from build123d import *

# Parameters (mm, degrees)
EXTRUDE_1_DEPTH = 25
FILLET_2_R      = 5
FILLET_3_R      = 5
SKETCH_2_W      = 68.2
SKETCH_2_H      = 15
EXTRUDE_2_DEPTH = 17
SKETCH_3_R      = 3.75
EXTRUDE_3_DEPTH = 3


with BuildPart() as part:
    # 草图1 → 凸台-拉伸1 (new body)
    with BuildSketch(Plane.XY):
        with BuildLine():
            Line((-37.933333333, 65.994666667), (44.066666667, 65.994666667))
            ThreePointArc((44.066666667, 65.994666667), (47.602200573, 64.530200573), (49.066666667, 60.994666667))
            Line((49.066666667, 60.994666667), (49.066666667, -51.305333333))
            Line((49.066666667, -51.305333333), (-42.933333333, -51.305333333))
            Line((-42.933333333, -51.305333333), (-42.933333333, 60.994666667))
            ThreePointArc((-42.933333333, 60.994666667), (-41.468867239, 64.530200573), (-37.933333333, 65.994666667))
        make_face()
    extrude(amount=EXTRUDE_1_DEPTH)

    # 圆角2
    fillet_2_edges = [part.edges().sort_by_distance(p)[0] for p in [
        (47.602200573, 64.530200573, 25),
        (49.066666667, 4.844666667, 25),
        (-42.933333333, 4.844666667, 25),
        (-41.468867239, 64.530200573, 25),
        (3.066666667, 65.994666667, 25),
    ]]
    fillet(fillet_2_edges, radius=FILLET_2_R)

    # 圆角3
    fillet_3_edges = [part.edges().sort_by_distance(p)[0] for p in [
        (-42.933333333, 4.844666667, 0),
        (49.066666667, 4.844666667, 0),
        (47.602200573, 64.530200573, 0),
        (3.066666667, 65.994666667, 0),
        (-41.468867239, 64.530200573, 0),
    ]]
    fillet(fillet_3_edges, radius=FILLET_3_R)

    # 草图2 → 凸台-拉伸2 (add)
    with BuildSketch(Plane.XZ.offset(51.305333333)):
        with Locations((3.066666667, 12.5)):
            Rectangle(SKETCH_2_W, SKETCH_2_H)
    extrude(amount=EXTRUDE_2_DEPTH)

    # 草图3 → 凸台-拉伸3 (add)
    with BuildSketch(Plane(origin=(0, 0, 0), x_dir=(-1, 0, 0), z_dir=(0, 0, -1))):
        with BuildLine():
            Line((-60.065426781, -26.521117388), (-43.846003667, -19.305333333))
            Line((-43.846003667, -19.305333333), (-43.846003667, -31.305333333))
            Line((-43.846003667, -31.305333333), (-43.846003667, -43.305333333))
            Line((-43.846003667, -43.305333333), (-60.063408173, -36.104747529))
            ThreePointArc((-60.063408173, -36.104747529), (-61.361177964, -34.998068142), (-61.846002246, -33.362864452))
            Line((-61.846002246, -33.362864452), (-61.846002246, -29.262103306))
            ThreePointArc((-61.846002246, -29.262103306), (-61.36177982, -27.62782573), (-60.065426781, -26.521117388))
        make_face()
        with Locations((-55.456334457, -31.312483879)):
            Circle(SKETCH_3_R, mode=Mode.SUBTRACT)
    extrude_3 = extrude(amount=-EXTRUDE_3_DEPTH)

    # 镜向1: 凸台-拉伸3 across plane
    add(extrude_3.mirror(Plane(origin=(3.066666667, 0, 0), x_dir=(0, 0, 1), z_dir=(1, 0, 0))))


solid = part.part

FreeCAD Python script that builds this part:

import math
import FreeCAD as App
import Part
import Sketcher


def edges_at(feature, points):
    """Names of the edges that pass closest to the given points."""
    edges = feature.Shape.Edges
    near = lambda p: min(range(len(edges)), key=lambda i: edges[i].distToShape(Part.Vertex(*p))[0])
    return sorted({f"Edge{near(p) + 1}" for p in points})


def add_polygon(sketch, points):
    """Adds a closed chain of lines whose ends are joined by coincident constraints."""
    first, n = sketch.GeometryCount, len(points)
    for a, b in zip(points, points[1:] + points[:1]):
        sketch.addGeometry(Part.LineSegment(App.Vector(*a, 0), App.Vector(*b, 0)), False)
    for i in range(n):
        sketch.addConstraint(Sketcher.Constraint("Coincident", first + i, 2, first + (i + 1) % n, 1))

doc = App.newDocument("Part")
body = doc.addObject("PartDesign::Body", "Body")

# Sketch on XY plane
sketch1 = body.newObject("Sketcher::SketchObject", "Sketch")
sketch1.AttachmentSupport = (doc.getObject("XY_Plane"), [""])
sketch1.MapMode = "FlatFace"
sketch1.addGeometry(Part.LineSegment(App.Vector(44, 66, 0), App.Vector(-38, 66, 0)), False)
sketch1.addGeometry(Part.ArcOfCircle(Part.Circle(App.Vector(-38, 61, 0), App.Vector(0, 0, 1), 5), math.radians(90), math.radians(180)), False)
sketch1.addGeometry(Part.LineSegment(App.Vector(-43, 61, 0), App.Vector(-43, -51, 0)), False)
sketch1.addGeometry(Part.LineSegment(App.Vector(-43, -51, 0), App.Vector(49, -51, 0)), False)
sketch1.addGeometry(Part.LineSegment(App.Vector(49, -51, 0), App.Vector(49, 61, 0)), False)
sketch1.addGeometry(Part.ArcOfCircle(Part.Circle(App.Vector(44, 61, 0), App.Vector(0, 0, 1), 5), math.radians(0), math.radians(90)), False)
sketch1.addConstraint(Sketcher.Constraint("Tangent", 0, 2, 1, 1))
sketch1.addConstraint(Sketcher.Constraint("Tangent", 1, 2, 2, 1))
sketch1.addConstraint(Sketcher.Constraint("Coincident", 2, 2, 3, 1))
sketch1.addConstraint(Sketcher.Constraint("Coincident", 3, 2, 4, 1))
sketch1.addConstraint(Sketcher.Constraint("Tangent", 4, 2, 5, 1))
sketch1.addConstraint(Sketcher.Constraint("Tangent", 5, 2, 0, 1))
sketch1.addConstraint(Sketcher.Constraint("Horizontal", 0))
sketch1.addConstraint(Sketcher.Constraint("Vertical", 2))
sketch1.addConstraint(Sketcher.Constraint("Horizontal", 3))
sketch1.addConstraint(Sketcher.Constraint("Vertical", 4))
sketch1.addConstraint(Sketcher.Constraint("Equal", 1, 5))
sketch1.addConstraint(Sketcher.Constraint("Radius", 1, 5.0))
sketch1.addConstraint(Sketcher.Constraint("DistanceX", 0, 2, 0, 1, 82.0))
sketch1.addConstraint(Sketcher.Constraint("DistanceY", 2, 2, 2, 1, 112.3))
sketch1.addConstraint(Sketcher.Constraint("DistanceX", 1, 3, -1, 1, 37.933333))
sketch1.addConstraint(Sketcher.Constraint("DistanceY", -1, 1, 1, 3, 60.994667))
pad1 = body.newObject("PartDesign::Pad", "Pad")
pad1.Profile = sketch1
pad1.Length = 25
doc.recompute()

fillet = body.newObject("PartDesign::Fillet", "Fillet")
fillet.Base = (pad1, edges_at(pad1, [
    (47.602, 64.53, 25),
    (49.067, 4.845, 25),
    (-42.933, 4.845, 25),
    (-41.469, 64.53, 25),
    (3.067, 65.995, 25),
]))
fillet.Radius = 5
doc.recompute()

fillet2 = body.newObject("PartDesign::Fillet", "Fillet001")
fillet2.Base = (fillet, edges_at(fillet, [
    (-42.933, 4.845, 0),
    (49.067, 4.845, 0),
    (47.602, 64.53, 0),
    (3.067, 65.995, 0),
    (-41.469, 64.53, 0),
]))
fillet2.Radius = 5

# Sketch on XZ plane
sketch2 = body.newObject("Sketcher::SketchObject", "Sketch001")
sketch2.AttachmentSupport = (doc.getObject("XZ_Plane"), [""])
sketch2.MapMode = "FlatFace"
sketch2.AttachmentOffset = App.Placement(App.Vector(0, 0, 51.305333), App.Rotation())
add_polygon(sketch2, [(-31, 20), (-31, 5), (37, 5), (37, 20)])  # lines 0-3
sketch2.addConstraint(Sketcher.Constraint("Vertical", 0))
sketch2.addConstraint(Sketcher.Constraint("Horizontal", 1))
sketch2.addConstraint(Sketcher.Constraint("Vertical", 2))
sketch2.addConstraint(Sketcher.Constraint("Horizontal", 3))
sketch2.addConstraint(Sketcher.Constraint("DistanceY", 0, 2, 0, 1, 15.0))
sketch2.addConstraint(Sketcher.Constraint("DistanceX", 1, 1, 1, 2, 68.2))
sketch2.addConstraint(Sketcher.Constraint("DistanceY", -1, 1, 0, 2, 5.0))
sketch2.addConstraint(Sketcher.Constraint("DistanceX", 0, 2, -1, 1, 31.033333))
pad2 = body.newObject("PartDesign::Pad", "Pad001")
pad2.Profile = sketch2
pad2.Length = 17

# Sketch on XY plane
sketch3 = body.newObject("Sketcher::SketchObject", "Sketch002")
sketch3.AttachmentSupport = (doc.getObject("XY_Plane"), [""])
sketch3.MapMode = "FlatFace"
sketch3.addGeometry(Part.LineSegment(App.Vector(43.8, -19.3, 0), App.Vector(60.1, -26.5, 0)), False)
sketch3.addGeometry(Part.ArcOfCircle(Part.Circle(App.Vector(58.8, -29.3, 0), App.Vector(0, 0, 1), 3), math.radians(0), math.radians(66)), False)
sketch3.addGeometry(Part.LineSegment(App.Vector(61.8, -29.3, 0), App.Vector(61.8, -33.4, 0)), False)
sketch3.addGeometry(Part.ArcOfCircle(Part.Circle(App.Vector(58.8, -33.4, 0), App.Vector(0, 0, 1), 3), math.radians(-66), math.radians(0)), False)
sketch3.addGeometry(Part.LineSegment(App.Vector(60.1, -36.1, 0), App.Vector(43.8, -43.3, 0)), False)
sketch3.addGeometry(Part.LineSegment(App.Vector(43.8, -43.3, 0), App.Vector(43.8, -19.3, 0)), False)
sketch3.addGeometry(Part.Circle(App.Vector(55.5, -31.3, 0), App.Vector(0, 0, 1), 3.8), False)
sketch3.addConstraint(Sketcher.Constraint("Tangent", 0, 2, 1, 2))
sketch3.addConstraint(Sketcher.Constraint("Tangent", 1, 1, 2, 1))
sketch3.addConstraint(Sketcher.Constraint("Tangent", 2, 2, 3, 2))
sketch3.addConstraint(Sketcher.Constraint("Tangent", 3, 1, 4, 1))
sketch3.addConstraint(Sketcher.Constraint("Coincident", 4, 2, 5, 1))
sketch3.addConstraint(Sketcher.Constraint("Coincident", 5, 2, 0, 1))
sketch3.addConstraint(Sketcher.Constraint("Vertical", 2))
sketch3.addConstraint(Sketcher.Constraint("Vertical", 5))
sketch3.addConstraint(Sketcher.Constraint("Equal", 1, 3))
sketch3.addConstraint(Sketcher.Constraint("Radius", 1, 3.0))
sketch3.addConstraint(Sketcher.Constraint("Diameter", 6, 7.5))
sketch3.addConstraint(Sketcher.Constraint("DistanceY", 5, 1, 5, 2, 24.0))
sketch3.addConstraint(Sketcher.Constraint("DistanceX", 4, 2, 3, 3, 14.999999))
sketch3.addConstraint(Sketcher.Constraint("DistanceY", 2, 2, 2, 1, 4.100761))
sketch3.addConstraint(Sketcher.Constraint("DistanceX", -1, 1, 3, 1, 60.063408))
sketch3.addConstraint(Sketcher.Constraint("DistanceY", 6, 3, 1, 3, 2.050381))
sketch3.addConstraint(Sketcher.Constraint("DistanceX", 4, 2, 6, 3, 11.610331))
sketch3.addConstraint(Sketcher.Constraint("DistanceY", 4, 2, 6, 3, 11.992849))
sketch3.addConstraint(Sketcher.Constraint("DistanceY", 1, 3, -1, 1, 29.262103))
pad3 = body.newObject("PartDesign::Pad", "Pad002")
pad3.Profile = sketch3
pad3.Length = 3
doc.recompute()

datumplane = body.newObject("PartDesign::Plane", "DatumPlane")
datumplane.AttachmentSupport = (doc.getObject("YZ_Plane"), [""])
datumplane.MapMode = "FlatFace"
datumplane.AttachmentOffset = App.Placement(App.Vector(0, 0, 3.066667), App.Rotation())
mirrored = body.newObject("PartDesign::Mirrored", "Mirrored")
mirrored.Originals = [pad3]
mirrored.MirrorPlane = (datumplane, [""])
body.Tip = mirrored

doc.recompute()
